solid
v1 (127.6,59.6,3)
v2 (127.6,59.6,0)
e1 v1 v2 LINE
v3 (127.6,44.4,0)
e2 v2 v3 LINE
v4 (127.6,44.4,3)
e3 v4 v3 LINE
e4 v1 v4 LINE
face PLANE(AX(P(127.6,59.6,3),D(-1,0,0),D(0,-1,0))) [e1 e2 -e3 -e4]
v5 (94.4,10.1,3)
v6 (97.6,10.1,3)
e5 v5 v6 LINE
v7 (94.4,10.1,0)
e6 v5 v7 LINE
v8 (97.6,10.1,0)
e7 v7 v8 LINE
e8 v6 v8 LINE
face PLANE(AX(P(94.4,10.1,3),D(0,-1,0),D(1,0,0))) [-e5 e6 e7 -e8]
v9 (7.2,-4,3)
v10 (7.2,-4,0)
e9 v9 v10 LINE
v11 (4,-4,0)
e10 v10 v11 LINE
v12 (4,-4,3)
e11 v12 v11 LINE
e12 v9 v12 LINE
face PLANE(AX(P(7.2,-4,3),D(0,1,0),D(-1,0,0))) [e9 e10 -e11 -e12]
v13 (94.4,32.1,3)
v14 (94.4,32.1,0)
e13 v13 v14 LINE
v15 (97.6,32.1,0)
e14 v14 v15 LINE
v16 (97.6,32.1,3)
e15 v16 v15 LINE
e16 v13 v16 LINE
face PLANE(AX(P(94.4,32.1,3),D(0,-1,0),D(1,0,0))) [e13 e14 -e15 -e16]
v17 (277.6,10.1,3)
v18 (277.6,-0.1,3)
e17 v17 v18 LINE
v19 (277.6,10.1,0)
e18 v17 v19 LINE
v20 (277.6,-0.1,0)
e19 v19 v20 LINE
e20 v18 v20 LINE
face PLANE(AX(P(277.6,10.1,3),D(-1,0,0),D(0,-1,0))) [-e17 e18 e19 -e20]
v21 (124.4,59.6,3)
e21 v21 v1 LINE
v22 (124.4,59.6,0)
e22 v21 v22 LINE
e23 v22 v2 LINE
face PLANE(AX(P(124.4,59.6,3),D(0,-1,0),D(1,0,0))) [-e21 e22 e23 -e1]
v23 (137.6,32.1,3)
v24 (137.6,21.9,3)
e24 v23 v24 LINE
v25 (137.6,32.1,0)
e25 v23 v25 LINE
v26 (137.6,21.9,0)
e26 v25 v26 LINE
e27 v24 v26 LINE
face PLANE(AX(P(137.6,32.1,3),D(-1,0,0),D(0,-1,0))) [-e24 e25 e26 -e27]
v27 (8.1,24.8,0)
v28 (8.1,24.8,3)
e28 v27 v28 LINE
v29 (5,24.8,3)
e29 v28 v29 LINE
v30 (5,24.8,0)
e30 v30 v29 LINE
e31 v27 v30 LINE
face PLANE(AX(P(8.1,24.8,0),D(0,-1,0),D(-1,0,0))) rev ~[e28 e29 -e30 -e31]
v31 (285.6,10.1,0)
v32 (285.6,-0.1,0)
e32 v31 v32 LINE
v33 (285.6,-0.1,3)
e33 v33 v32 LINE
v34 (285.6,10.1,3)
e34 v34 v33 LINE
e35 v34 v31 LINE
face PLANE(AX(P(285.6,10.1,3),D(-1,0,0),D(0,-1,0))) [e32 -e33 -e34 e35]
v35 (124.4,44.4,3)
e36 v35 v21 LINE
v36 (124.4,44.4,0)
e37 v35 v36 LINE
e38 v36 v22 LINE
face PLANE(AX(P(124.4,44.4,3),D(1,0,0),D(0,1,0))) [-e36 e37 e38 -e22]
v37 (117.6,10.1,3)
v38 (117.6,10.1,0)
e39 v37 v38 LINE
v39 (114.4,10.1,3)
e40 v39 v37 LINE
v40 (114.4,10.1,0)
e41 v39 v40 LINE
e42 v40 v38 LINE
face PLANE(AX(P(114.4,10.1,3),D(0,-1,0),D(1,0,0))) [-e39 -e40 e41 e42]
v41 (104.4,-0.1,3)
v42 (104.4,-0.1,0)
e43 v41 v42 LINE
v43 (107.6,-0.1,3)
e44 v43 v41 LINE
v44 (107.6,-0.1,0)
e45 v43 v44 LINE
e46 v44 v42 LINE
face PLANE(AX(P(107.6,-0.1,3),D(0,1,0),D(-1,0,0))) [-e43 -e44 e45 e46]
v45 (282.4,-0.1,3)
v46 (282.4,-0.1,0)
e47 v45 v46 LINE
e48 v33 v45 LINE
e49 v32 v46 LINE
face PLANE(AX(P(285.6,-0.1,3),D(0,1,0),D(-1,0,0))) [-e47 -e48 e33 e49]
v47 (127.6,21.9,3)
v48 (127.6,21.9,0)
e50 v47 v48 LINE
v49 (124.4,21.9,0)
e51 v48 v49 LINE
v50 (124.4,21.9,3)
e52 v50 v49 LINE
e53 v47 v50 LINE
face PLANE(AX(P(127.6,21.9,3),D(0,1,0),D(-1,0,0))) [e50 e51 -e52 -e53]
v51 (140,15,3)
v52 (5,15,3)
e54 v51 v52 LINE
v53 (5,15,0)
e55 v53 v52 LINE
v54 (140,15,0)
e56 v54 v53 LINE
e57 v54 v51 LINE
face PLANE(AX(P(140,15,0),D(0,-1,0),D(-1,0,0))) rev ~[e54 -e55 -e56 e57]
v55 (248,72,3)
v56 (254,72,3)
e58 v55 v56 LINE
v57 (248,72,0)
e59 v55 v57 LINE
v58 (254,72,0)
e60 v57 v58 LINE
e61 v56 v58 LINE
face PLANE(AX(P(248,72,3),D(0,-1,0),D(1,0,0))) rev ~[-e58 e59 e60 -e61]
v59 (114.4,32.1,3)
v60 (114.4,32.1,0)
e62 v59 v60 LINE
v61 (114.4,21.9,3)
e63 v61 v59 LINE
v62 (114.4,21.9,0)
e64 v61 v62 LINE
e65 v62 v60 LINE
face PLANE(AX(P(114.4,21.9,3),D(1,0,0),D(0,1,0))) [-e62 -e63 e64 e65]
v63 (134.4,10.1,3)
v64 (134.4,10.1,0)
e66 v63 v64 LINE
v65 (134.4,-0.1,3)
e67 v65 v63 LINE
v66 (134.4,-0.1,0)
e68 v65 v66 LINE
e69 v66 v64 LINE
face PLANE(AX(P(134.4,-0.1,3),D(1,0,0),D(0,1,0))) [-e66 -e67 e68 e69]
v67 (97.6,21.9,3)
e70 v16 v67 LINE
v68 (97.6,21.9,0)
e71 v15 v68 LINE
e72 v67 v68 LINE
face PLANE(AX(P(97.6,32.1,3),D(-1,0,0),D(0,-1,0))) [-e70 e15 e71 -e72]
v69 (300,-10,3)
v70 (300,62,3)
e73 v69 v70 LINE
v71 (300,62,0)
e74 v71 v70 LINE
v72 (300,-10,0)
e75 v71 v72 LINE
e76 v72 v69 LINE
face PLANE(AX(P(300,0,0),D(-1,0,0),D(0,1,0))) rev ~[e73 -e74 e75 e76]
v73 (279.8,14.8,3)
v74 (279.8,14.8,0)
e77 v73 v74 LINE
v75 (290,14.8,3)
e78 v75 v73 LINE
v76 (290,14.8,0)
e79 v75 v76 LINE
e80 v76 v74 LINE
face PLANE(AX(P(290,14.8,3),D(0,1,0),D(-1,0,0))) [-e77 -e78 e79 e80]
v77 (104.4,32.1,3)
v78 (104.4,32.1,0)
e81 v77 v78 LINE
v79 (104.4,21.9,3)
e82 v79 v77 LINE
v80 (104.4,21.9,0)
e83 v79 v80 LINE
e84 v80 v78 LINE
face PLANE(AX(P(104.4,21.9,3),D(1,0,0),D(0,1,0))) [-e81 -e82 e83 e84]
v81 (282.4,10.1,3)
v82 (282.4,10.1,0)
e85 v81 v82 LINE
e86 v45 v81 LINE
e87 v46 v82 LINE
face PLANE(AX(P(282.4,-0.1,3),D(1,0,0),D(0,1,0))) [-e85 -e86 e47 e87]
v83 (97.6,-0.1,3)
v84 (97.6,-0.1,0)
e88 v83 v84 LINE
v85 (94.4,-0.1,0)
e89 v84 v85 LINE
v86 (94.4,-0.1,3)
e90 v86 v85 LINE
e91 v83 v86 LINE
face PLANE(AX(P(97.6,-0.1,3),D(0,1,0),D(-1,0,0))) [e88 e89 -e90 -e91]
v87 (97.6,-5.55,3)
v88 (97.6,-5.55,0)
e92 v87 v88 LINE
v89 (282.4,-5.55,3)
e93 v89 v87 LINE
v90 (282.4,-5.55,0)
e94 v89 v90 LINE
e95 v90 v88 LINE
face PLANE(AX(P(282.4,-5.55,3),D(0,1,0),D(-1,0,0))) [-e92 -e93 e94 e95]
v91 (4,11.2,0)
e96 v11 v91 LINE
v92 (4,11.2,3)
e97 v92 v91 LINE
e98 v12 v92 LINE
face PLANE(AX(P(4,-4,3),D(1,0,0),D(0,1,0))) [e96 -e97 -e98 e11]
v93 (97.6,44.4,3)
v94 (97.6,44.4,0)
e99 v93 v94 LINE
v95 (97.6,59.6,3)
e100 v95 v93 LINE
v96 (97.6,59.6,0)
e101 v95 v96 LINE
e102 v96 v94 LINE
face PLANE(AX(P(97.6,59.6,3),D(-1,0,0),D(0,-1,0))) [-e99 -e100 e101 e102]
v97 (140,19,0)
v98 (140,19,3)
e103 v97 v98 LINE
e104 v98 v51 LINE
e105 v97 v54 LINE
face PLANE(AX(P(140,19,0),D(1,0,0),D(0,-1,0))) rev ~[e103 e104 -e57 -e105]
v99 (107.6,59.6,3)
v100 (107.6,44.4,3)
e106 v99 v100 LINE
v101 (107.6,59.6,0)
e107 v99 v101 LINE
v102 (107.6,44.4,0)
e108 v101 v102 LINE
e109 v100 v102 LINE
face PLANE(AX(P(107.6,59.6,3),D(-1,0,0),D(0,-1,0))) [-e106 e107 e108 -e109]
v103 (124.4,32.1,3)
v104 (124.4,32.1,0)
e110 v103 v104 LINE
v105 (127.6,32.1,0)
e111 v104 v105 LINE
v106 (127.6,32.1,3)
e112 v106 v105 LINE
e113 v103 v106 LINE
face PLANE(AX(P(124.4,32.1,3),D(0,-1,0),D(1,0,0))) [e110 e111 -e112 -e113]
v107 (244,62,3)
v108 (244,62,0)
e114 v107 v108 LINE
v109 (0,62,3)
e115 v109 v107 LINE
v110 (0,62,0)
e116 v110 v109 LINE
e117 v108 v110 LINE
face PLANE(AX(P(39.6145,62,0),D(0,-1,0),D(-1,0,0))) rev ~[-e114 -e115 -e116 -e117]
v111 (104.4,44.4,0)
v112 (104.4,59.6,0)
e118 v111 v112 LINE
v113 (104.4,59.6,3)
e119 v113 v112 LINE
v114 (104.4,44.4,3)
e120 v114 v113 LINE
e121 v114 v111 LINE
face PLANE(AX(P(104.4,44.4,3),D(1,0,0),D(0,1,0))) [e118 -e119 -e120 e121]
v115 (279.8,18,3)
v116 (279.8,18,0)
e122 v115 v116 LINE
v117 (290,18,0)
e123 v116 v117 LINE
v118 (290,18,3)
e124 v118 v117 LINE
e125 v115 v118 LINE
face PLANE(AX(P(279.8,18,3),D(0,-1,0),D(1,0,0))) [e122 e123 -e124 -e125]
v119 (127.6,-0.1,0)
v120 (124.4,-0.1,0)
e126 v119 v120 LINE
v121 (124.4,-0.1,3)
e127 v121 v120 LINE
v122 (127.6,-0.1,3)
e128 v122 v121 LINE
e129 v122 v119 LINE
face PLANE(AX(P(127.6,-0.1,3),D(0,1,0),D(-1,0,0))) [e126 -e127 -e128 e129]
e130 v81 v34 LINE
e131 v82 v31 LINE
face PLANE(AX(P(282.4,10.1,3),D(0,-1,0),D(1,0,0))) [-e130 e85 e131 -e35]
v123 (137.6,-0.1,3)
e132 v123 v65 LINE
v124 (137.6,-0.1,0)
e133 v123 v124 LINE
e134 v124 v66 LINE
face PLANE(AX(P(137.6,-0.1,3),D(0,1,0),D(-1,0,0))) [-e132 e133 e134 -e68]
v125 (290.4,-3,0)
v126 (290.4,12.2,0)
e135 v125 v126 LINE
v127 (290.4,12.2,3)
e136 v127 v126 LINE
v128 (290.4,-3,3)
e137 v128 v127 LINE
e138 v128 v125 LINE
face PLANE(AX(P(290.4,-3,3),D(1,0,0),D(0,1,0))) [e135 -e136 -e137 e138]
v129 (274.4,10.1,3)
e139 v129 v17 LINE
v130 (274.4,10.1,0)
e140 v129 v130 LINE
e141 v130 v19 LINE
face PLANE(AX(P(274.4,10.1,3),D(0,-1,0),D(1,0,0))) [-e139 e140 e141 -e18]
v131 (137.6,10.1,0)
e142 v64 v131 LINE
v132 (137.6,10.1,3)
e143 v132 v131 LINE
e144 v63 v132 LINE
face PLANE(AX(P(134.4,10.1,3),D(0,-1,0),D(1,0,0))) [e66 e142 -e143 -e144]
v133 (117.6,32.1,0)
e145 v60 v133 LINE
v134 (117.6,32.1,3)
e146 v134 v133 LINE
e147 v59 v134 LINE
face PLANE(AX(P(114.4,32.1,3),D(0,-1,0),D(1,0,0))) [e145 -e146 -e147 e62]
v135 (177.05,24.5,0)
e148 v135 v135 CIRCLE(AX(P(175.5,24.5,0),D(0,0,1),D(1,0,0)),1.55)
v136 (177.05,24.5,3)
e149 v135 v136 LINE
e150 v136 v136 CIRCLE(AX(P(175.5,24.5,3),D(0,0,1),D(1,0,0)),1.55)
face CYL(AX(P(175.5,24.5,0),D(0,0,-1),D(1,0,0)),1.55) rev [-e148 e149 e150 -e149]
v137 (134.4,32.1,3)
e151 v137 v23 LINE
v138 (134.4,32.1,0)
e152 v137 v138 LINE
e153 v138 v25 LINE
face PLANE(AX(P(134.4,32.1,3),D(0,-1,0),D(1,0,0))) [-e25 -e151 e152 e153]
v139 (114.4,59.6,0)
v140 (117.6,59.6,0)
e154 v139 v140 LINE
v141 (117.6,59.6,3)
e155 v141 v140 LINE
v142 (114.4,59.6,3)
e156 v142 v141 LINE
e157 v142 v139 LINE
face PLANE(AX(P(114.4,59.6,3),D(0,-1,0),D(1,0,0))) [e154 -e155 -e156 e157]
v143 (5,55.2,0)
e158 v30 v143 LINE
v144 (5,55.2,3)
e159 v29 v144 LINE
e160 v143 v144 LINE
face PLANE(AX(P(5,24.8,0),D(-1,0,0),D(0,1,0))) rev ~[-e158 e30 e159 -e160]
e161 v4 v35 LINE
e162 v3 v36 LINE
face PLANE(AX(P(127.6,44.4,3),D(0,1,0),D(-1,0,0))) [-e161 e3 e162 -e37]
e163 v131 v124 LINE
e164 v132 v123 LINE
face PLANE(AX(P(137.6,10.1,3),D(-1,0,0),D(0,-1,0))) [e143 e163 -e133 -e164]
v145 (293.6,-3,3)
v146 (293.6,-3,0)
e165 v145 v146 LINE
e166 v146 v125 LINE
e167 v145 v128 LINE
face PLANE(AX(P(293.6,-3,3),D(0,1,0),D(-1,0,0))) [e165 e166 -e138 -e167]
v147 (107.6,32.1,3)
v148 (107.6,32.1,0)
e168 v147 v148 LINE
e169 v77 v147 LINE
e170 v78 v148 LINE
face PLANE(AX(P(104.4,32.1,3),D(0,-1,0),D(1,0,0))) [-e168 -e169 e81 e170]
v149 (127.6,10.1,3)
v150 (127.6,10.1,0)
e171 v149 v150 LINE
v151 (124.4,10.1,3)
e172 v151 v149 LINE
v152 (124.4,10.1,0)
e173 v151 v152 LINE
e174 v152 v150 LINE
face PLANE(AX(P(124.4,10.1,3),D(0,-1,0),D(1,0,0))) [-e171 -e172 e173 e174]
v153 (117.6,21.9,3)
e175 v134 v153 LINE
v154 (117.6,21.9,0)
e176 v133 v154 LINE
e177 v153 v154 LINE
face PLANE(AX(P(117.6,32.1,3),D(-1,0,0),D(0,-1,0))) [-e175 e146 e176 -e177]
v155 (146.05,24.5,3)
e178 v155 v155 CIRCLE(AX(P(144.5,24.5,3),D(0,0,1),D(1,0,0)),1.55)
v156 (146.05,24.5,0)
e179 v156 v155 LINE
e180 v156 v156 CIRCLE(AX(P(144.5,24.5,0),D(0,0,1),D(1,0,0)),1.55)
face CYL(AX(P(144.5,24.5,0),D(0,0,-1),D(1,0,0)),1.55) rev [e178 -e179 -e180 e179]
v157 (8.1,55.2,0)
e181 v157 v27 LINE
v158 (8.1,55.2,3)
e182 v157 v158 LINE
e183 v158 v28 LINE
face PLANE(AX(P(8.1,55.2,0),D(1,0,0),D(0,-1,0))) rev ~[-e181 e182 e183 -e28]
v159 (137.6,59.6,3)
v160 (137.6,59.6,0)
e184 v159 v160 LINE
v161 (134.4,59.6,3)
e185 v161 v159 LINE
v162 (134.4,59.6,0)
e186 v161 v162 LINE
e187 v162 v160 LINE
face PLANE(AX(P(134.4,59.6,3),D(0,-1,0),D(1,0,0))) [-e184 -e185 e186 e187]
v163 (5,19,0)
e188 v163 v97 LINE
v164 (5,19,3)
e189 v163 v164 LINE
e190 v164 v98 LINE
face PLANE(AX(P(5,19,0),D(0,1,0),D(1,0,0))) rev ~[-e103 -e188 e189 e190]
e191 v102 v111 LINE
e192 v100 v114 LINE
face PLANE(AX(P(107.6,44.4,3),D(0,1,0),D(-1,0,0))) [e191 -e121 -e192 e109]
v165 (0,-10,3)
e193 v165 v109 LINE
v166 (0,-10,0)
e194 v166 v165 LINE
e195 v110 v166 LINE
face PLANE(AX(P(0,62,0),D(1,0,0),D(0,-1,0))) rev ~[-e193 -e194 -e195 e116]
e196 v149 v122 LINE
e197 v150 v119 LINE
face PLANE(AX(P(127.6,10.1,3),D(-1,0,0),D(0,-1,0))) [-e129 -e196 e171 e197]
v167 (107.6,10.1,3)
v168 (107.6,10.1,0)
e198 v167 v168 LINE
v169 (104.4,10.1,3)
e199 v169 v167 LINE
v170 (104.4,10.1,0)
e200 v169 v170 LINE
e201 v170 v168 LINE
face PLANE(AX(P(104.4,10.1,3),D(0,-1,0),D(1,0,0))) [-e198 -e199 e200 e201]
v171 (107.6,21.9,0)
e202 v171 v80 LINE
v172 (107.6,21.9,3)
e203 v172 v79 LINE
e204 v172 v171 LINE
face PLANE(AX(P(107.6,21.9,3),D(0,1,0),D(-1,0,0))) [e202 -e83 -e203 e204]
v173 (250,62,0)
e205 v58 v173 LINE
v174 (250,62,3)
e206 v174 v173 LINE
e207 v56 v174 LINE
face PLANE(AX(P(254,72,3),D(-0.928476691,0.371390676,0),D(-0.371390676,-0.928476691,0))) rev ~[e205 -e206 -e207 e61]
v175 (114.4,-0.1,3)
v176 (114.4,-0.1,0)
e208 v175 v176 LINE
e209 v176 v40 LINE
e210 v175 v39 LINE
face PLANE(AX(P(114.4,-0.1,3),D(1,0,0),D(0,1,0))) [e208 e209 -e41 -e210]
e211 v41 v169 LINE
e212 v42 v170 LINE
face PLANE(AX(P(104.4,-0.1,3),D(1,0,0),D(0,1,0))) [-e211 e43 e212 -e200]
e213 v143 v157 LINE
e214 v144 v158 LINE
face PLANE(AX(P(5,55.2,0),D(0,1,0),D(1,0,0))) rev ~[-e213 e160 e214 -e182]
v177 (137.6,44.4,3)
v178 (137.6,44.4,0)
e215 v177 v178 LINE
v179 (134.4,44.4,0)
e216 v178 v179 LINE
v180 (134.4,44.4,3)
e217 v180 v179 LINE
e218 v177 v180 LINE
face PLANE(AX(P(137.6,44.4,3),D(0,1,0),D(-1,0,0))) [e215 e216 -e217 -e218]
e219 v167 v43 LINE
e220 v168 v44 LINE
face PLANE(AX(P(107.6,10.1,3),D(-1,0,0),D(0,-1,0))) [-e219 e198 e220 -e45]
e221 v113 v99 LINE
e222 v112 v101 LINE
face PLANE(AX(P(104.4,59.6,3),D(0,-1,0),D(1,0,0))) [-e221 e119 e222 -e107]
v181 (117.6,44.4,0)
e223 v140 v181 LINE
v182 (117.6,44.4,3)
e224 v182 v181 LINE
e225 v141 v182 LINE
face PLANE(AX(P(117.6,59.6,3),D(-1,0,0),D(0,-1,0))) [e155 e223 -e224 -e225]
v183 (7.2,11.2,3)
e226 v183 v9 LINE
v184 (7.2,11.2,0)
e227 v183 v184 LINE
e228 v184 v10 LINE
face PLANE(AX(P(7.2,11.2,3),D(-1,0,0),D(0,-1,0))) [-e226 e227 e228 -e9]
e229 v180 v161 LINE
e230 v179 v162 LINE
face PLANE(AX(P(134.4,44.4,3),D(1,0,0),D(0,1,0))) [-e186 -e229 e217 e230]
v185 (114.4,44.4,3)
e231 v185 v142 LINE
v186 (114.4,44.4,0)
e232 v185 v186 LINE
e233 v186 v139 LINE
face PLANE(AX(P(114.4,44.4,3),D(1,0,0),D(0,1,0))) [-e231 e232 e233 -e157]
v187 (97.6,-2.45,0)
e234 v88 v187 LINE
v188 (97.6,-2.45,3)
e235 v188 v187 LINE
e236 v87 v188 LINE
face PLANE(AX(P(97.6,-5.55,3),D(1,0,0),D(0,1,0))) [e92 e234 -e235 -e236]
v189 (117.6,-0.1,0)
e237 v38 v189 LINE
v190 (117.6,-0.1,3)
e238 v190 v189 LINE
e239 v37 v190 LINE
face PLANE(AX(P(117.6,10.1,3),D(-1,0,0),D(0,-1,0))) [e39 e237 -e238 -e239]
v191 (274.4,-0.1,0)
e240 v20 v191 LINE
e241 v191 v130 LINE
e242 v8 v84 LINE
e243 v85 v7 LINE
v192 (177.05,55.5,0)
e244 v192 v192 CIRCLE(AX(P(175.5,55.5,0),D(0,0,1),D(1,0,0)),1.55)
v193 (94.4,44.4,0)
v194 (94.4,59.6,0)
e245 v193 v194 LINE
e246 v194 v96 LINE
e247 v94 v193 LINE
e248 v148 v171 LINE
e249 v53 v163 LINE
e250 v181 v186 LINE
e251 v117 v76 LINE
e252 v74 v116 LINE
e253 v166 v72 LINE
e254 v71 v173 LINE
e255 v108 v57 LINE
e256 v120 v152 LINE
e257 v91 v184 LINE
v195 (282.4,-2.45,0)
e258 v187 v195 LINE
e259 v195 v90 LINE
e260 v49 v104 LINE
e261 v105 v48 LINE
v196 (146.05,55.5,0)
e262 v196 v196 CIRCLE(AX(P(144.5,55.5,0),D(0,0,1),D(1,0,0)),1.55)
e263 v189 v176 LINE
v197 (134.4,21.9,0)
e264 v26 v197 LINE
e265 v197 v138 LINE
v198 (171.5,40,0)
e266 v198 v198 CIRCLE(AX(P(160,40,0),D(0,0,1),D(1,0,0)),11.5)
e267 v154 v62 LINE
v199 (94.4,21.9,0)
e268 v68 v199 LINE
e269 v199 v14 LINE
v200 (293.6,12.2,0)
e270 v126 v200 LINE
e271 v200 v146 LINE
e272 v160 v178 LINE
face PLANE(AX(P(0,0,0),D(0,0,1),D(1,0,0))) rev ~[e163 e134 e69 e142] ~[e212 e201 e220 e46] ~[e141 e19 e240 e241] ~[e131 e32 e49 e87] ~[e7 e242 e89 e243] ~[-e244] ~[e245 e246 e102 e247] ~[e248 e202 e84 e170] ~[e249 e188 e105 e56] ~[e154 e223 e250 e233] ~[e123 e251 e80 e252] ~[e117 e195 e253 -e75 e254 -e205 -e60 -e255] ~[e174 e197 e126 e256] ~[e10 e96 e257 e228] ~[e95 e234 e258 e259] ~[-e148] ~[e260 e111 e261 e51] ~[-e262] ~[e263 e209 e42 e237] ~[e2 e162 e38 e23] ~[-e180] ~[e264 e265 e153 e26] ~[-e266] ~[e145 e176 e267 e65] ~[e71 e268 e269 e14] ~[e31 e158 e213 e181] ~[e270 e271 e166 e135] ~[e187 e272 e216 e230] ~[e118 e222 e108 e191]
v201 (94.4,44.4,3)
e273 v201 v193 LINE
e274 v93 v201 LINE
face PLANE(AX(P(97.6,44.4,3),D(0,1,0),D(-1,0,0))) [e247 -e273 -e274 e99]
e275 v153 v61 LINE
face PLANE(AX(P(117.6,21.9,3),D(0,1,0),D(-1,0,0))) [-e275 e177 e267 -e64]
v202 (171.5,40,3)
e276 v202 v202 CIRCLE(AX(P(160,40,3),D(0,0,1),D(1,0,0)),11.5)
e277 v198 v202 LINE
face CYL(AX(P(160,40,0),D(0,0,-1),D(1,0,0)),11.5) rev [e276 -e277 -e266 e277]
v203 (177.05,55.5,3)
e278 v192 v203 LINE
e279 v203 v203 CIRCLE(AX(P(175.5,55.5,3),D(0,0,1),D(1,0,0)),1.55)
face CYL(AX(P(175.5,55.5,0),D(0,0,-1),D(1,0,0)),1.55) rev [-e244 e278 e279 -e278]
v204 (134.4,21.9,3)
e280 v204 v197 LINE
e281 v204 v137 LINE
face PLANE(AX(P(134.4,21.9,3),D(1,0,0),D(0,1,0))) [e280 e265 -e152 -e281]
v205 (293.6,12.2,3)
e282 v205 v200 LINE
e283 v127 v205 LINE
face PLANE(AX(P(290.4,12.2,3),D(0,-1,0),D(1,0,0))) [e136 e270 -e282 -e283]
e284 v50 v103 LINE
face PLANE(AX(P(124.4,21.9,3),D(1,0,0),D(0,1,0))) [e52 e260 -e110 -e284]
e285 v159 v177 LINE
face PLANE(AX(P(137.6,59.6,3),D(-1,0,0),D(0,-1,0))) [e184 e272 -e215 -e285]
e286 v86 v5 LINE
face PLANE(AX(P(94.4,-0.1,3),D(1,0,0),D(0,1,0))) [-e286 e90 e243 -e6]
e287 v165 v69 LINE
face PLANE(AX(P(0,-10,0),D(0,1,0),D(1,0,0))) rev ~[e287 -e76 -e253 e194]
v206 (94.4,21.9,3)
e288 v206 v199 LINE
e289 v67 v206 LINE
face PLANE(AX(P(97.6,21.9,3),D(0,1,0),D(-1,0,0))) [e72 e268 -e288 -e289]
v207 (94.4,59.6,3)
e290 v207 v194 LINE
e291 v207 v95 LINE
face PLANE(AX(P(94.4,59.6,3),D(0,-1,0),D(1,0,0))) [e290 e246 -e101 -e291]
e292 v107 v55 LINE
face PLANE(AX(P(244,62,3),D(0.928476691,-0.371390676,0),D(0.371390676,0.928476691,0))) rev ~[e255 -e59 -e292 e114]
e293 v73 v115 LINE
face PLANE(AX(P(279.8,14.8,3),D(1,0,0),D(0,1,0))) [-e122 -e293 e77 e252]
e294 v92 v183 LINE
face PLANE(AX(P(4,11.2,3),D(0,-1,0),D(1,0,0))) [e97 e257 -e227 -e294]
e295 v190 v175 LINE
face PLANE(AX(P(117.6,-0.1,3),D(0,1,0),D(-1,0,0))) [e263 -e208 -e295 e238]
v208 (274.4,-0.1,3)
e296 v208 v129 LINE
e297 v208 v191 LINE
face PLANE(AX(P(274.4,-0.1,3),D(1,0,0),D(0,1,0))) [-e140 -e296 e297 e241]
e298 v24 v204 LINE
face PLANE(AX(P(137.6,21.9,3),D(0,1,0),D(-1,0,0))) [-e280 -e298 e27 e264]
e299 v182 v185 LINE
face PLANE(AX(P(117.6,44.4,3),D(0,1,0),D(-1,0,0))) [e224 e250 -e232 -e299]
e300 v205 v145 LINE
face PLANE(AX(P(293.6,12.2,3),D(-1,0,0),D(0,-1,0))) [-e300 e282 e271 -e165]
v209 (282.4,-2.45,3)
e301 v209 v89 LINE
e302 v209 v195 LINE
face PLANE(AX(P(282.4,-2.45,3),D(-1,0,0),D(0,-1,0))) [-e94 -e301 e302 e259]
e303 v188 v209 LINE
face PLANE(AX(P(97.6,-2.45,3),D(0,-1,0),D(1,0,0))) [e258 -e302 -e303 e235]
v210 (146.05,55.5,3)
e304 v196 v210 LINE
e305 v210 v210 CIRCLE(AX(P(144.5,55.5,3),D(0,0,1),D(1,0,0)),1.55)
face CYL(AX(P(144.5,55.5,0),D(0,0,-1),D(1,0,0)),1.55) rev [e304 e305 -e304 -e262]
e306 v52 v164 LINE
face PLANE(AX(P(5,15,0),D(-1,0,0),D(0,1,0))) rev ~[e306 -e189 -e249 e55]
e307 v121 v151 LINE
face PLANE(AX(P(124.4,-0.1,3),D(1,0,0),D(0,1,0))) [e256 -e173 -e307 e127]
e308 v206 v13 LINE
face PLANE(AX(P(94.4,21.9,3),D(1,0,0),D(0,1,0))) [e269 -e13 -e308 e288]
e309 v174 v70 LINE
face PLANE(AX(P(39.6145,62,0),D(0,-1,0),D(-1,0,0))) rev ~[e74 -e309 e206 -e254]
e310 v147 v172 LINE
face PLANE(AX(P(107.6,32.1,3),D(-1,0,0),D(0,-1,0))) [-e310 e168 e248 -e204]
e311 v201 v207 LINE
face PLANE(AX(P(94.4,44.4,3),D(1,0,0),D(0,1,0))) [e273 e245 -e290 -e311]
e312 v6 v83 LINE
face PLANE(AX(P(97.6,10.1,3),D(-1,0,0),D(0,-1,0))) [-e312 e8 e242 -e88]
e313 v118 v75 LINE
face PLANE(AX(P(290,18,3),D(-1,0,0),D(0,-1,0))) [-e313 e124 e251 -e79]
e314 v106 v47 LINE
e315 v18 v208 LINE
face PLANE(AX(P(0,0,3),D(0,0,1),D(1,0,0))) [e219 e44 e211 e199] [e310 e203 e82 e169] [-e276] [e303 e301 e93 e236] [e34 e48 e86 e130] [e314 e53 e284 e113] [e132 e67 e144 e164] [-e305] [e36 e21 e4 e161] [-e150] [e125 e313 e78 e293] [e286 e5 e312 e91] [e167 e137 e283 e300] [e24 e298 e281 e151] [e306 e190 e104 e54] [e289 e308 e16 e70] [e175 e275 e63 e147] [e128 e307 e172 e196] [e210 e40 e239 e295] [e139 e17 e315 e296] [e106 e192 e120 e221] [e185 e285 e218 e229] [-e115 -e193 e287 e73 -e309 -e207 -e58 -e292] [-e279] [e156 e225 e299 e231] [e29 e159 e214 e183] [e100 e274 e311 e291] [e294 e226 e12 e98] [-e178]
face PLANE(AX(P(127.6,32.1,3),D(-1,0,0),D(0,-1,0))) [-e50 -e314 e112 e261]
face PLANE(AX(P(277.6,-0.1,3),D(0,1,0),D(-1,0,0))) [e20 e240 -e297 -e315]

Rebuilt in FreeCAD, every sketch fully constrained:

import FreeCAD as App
import Part
import Sketcher
from FreeCAD import Vector
Q = App.Units.Quantity

doc = App.newDocument("Part")
body = doc.addObject("PartDesign::Body", "Body")

# Sketch on XY plane
sketch1 = doc.addObject("Sketcher::SketchObject", "Sketch")
body.addObject(sketch1)
sketch1.AttachmentSupport = (doc.XY_Plane, [""])
sketch1.MapMode = "FlatFace"
sketch1.addGeometry([
    Part.LineSegment(Vector(0, 62, 0), Vector(0, -10, 0)),  # 0
    Part.LineSegment(Vector(0, -10, 0), Vector(300, -10, 0)),  # 1
    Part.LineSegment(Vector(300, -10, 0), Vector(300, 62, 0)),  # 2
    Part.LineSegment(Vector(300, 62, 0), Vector(0, 62, 0)),  # 3
    Part.LineSegment(Vector(5, 15, 0), Vector(5, 19, 0)),  # 4
    Part.LineSegment(Vector(5, 19, 0), Vector(140, 19, 0)),  # 5
    Part.LineSegment(Vector(140, 19, 0), Vector(140, 15, 0)),  # 6
    Part.LineSegment(Vector(140, 15, 0), Vector(5, 15, 0)),  # 7
    Part.Circle(Vector(144.5, 24.5, 0), Vector(0, 0, 1), 1.55),  # 8
    Part.Circle(Vector(175.5, 24.5, 0), Vector(0, 0, 1), 1.55),  # 9
    Part.LineSegment(Vector(8.1, 55.2, 0), Vector(8.1, 24.8, 0)),  # 10
    Part.LineSegment(Vector(8.1, 24.8, 0), Vector(5, 24.8, 0)),  # 11
    Part.LineSegment(Vector(5, 24.8, 0), Vector(5, 55.2, 0)),  # 12
    Part.LineSegment(Vector(5, 55.2, 0), Vector(8.1, 55.2, 0)),  # 13
    Part.Circle(Vector(144.5, 55.5, 0), Vector(0, 0, 1), 1.55),  # 14
    Part.Circle(Vector(160, 40, 0), Vector(0, 0, 1), 11.5),  # 15
    Part.Circle(Vector(175.5, 55.5, 0), Vector(0, 0, 1), 1.55),  # 16
], False)
sketch1.addConstraint([
    Sketcher.Constraint("Coincident", 0, 2, 1, 1),
    Sketcher.Constraint("Coincident", 1, 2, 2, 1),
    Sketcher.Constraint("Coincident", 2, 2, 3, 1),
    Sketcher.Constraint("Coincident", 3, 2, 0, 1),
    Sketcher.Constraint("Coincident", 4, 2, 5, 1),
    Sketcher.Constraint("Coincident", 5, 2, 6, 1),
    Sketcher.Constraint("Coincident", 6, 2, 7, 1),
    Sketcher.Constraint("Coincident", 7, 2, 4, 1),
    Sketcher.Constraint("Coincident", 10, 2, 11, 1),
    Sketcher.Constraint("Coincident", 11, 2, 12, 1),
    Sketcher.Constraint("Coincident", 12, 2, 13, 1),
    Sketcher.Constraint("Coincident", 13, 2, 10, 1),
    Sketcher.Constraint("Vertical", 0),
    Sketcher.Constraint("Horizontal", 1),
    Sketcher.Constraint("Vertical", 2),
    Sketcher.Constraint("Horizontal", 3),
    Sketcher.Constraint("Vertical", 4),
    Sketcher.Constraint("Horizontal", 5),
    Sketcher.Constraint("Vertical", 6),
    Sketcher.Constraint("Horizontal", 7),
    Sketcher.Constraint("Vertical", 10),
    Sketcher.Constraint("Horizontal", 11),
    Sketcher.Constraint("Vertical", 12),
    Sketcher.Constraint("Horizontal", 13),
    Sketcher.Constraint("Equal", 8, 9),
    Sketcher.Constraint("Equal", 9, 14),
    Sketcher.Constraint("Equal", 14, 16),
    Sketcher.Constraint("PointOnObject", 0, 2, -2),
    Sketcher.Constraint("Horizontal", 8, 3, 9, 3),
    Sketcher.Constraint("Horizontal", 14, 3, 16, 3),
    Sketcher.Constraint("Vertical", 8, 3, 14, 3),
    Sketcher.Constraint("Vertical", 9, 3, 16, 3),
    Sketcher.Constraint("Vertical", 7, 2, 11, 2),
    Sketcher.Constraint("Diameter", 15, Q("23 mm")),
    Sketcher.Constraint("Diameter", 8, Q("3.1 mm")),
    Sketcher.Constraint("DistanceX", 1, 1, 1, 2, Q("300 mm")),
    Sketcher.Constraint("DistanceX", 5, 1, 5, 2, Q("135 mm")),
    Sketcher.Constraint("DistanceY", 4, 1, 4, 2, Q("4 mm")),
    Sketcher.Constraint("DistanceX", 11, 2, 11, 1, Q("3.1 mm")),
    Sketcher.Constraint("DistanceY", -1, 1, 15, 3, Q("40 mm")),
    Sketcher.Constraint("DistanceY", 0, 2, -1, 1, Q("10 mm")),
    Sketcher.Constraint("DistanceY", -1, 1, 2, 2, Q("62 mm")),
    Sketcher.Constraint("DistanceX", -1, 1, 4, 2, Q("5 mm")),
    Sketcher.Constraint("DistanceY", -1, 1, 6, 2, Q("15 mm")),
    Sketcher.Constraint("DistanceX", 8, 3, 9, 3, Q("31 mm")),
    Sketcher.Constraint("DistanceY", 8, 3, 14, 3, Q("31 mm")),
    Sketcher.Constraint("DistanceX", 5, 2, 15, 3, Q("20 mm")),
    Sketcher.Constraint("DistanceX", 8, 3, 15, 3, Q("15.5 mm")),
    Sketcher.Constraint("DistanceY", 8, 3, 15, 3, Q("15.5 mm")),
    Sketcher.Constraint("DistanceY", 10, 2, 10, 1, Q("30.4 mm")),
    Sketcher.Constraint("DistanceY", -1, 1, 10, 2, Q("24.8 mm")),
])
pad1 = doc.addObject("PartDesign::Pad", "Pad")
body.addObject(pad1)
pad1.Profile = sketch1
pad1.Length = 3

# Sketch on XY plane
sketch2 = doc.addObject("Sketcher::SketchObject", "Sketch001")
body.addObject(sketch2)
sketch2.AttachmentSupport = (doc.XY_Plane, [""])
sketch2.MapMode = "FlatFace"
sketch2.AttachmentOffset = App.Placement(Vector(0, 0, 3), App.Rotation())
sketch2.addGeometry([
    Part.LineSegment(Vector(244, 62, 0), Vector(250, 62, 0)),
    Part.LineSegment(Vector(250, 62, 0), Vector(254, 72, 0)),
    Part.LineSegment(Vector(254, 72, 0), Vector(248, 72, 0)),
    Part.LineSegment(Vector(248, 72, 0), Vector(244, 62, 0)),
], False)
sketch2.addConstraint([
    Sketcher.Constraint("Coincident", 0, 2, 1, 1),
    Sketcher.Constraint("Coincident", 1, 2, 2, 1),
    Sketcher.Constraint("Coincident", 2, 2, 3, 1),
    Sketcher.Constraint("Coincident", 3, 2, 0, 1),
    Sketcher.Constraint("Horizontal", 0),
    Sketcher.Constraint("Horizontal", 2),
    Sketcher.Constraint("Parallel", 1, 3),
    Sketcher.Constraint("DistanceX", 0, 1, 0, 2, Q("6 mm")),
    Sketcher.Constraint("DistanceX", 0, 2, 1, 2, Q("4 mm")),
    Sketcher.Constraint("DistanceY", 0, 2, 1, 2, Q("10 mm")),
    Sketcher.Constraint("DistanceX", -1, 1, 0, 2, Q("250 mm")),
    Sketcher.Constraint("DistanceY", -1, 1, 0, 2, Q("62 mm")),
])
pad2 = doc.addObject("PartDesign::Pad", "Pad001")
body.addObject(pad2)
pad2.Profile = sketch2
pad2.Length = 3
pad2.Reversed = True

# Sketch on XY plane
sketch3 = doc.addObject("Sketcher::SketchObject", "Sketch002")
body.addObject(sketch3)
sketch3.AttachmentSupport = (doc.XY_Plane, [""])
sketch3.MapMode = "FlatFace"
sketch3.AttachmentOffset = App.Placement(Vector(0, 0, 3), App.Rotation())
sketch3.addGeometry([
    Part.LineSegment(Vector(137.6, 59.6, 0), Vector(134.4, 59.6, 0)),  # 0
    Part.LineSegment(Vector(134.4, 59.6, 0), Vector(134.4, 44.4, 0)),  # 1
    Part.LineSegment(Vector(134.4, 44.4, 0), Vector(137.6, 44.4, 0)),  # 2
    Part.LineSegment(Vector(137.6, 44.4, 0), Vector(137.6, 59.6, 0)),  # 3
    Part.LineSegment(Vector(137.6, 32.1, 0), Vector(134.4, 32.1, 0)),  # 4
    Part.LineSegment(Vector(134.4, 32.1, 0), Vector(134.4, 21.9, 0)),  # 5
    Part.LineSegment(Vector(134.4, 21.9, 0), Vector(137.6, 21.9, 0)),  # 6
    Part.LineSegment(Vector(137.6, 21.9, 0), Vector(137.6, 32.1, 0)),  # 7
    Part.LineSegment(Vector(127.6, 59.6, 0), Vector(124.4, 59.6, 0)),  # 8
    Part.LineSegment(Vector(124.4, 59.6, 0), Vector(124.4, 44.4, 0)),  # 9
    Part.LineSegment(Vector(124.4, 44.4, 0), Vector(127.6, 44.4, 0)),  # 10
    Part.LineSegment(Vector(127.6, 44.4, 0), Vector(127.6, 59.6, 0)),  # 11
    Part.LineSegment(Vector(127.6, 32.1, 0), Vector(124.4, 32.1, 0)),  # 12
    Part.LineSegment(Vector(124.4, 32.1, 0), Vector(124.4, 21.9, 0)),  # 13
    Part.LineSegment(Vector(124.4, 21.9, 0), Vector(127.6, 21.9, 0)),  # 14
    Part.LineSegment(Vector(127.6, 21.9, 0), Vector(127.6, 32.1, 0)),  # 15
    Part.LineSegment(Vector(117.6, 59.6, 0), Vector(114.4, 59.6, 0)),  # 16
    Part.LineSegment(Vector(114.4, 59.6, 0), Vector(114.4, 44.4, 0)),  # 17
    Part.LineSegment(Vector(114.4, 44.4, 0), Vector(117.6, 44.4, 0)),  # 18
    Part.LineSegment(Vector(117.6, 44.4, 0), Vector(117.6, 59.6, 0)),  # 19
    Part.LineSegment(Vector(117.6, 32.1, 0), Vector(114.4, 32.1, 0)),  # 20
    Part.LineSegment(Vector(114.4, 32.1, 0), Vector(114.4, 21.9, 0)),  # 21
    Part.LineSegment(Vector(114.4, 21.9, 0), Vector(117.6, 21.9, 0)),  # 22
    Part.LineSegment(Vector(117.6, 21.9, 0), Vector(117.6, 32.1, 0)),  # 23
    Part.LineSegment(Vector(107.6, 59.6, 0), Vector(104.4, 59.6, 0)),  # 24
    Part.LineSegment(Vector(104.4, 59.6, 0), Vector(104.4, 44.4, 0)),  # 25
    Part.LineSegment(Vector(104.4, 44.4, 0), Vector(107.6, 44.4, 0)),  # 26
    Part.LineSegment(Vector(107.6, 44.4, 0), Vector(107.6, 59.6, 0)),  # 27
    Part.LineSegment(Vector(107.6, 32.1, 0), Vector(104.4, 32.1, 0)),  # 28
    Part.LineSegment(Vector(104.4, 32.1, 0), Vector(104.4, 21.9, 0)),  # 29
    Part.LineSegment(Vector(104.4, 21.9, 0), Vector(107.6, 21.9, 0)),  # 30
    Part.LineSegment(Vector(107.6, 21.9, 0), Vector(107.6, 32.1, 0)),  # 31
    Part.LineSegment(Vector(97.6, 59.6, 0), Vector(94.4, 59.6, 0)),  # 32
    Part.LineSegment(Vector(94.4, 59.6, 0), Vector(94.4, 44.4, 0)),  # 33
    Part.LineSegment(Vector(94.4, 44.4, 0), Vector(97.6, 44.4, 0)),  # 34
    Part.LineSegment(Vector(97.6, 44.4, 0), Vector(97.6, 59.6, 0)),  # 35
    Part.LineSegment(Vector(97.6, 32.1, 0), Vector(94.4, 32.1, 0)),  # 36
    Part.LineSegment(Vector(94.4, 32.1, 0), Vector(94.4, 21.9, 0)),  # 37
    Part.LineSegment(Vector(94.4, 21.9, 0), Vector(97.6, 21.9, 0)),  # 38
    Part.LineSegment(Vector(97.6, 21.9, 0), Vector(97.6, 32.1, 0)),  # 39
    Part.LineSegment(Vector(137.6, 10.1, 0), Vector(134.4, 10.1, 0)),  # 40
    Part.LineSegment(Vector(134.4, 10.1, 0), Vector(134.4, -0.1, 0)),  # 41
    Part.LineSegment(Vector(134.4, -0.1, 0), Vector(137.6, -0.1, 0)),  # 42
    Part.LineSegment(Vector(137.6, -0.1, 0), Vector(137.6, 10.1, 0)),  # 43
    Part.LineSegment(Vector(127.6, -0.1, 0), Vector(127.6, 10.1, 0)),  # 44
    Part.LineSegment(Vector(127.6, 10.1, 0), Vector(124.4, 10.1, 0)),  # 45
    Part.LineSegment(Vector(124.4, 10.1, 0), Vector(124.4, -0.1, 0)),  # 46
    Part.LineSegment(Vector(124.4, -0.1, 0), Vector(127.6, -0.1, 0)),  # 47
    Part.LineSegment(Vector(117.6, -0.1, 0), Vector(117.6, 10.1, 0)),  # 48
    Part.LineSegment(Vector(117.6, 10.1, 0), Vector(114.4, 10.1, 0)),  # 49
    Part.LineSegment(Vector(114.4, 10.1, 0), Vector(114.4, -0.1, 0)),  # 50
    Part.LineSegment(Vector(114.4, -0.1, 0), Vector(117.6, -0.1, 0)),  # 51
    Part.LineSegment(Vector(107.6, -0.1, 0), Vector(107.6, 10.1, 0)),  # 52
    Part.LineSegment(Vector(107.6, 10.1, 0), Vector(104.4, 10.1, 0)),  # 53
    Part.LineSegment(Vector(104.4, 10.1, 0), Vector(104.4, -0.1, 0)),  # 54
    Part.LineSegment(Vector(104.4, -0.1, 0), Vector(107.6, -0.1, 0)),  # 55
    Part.LineSegment(Vector(97.6, -0.1, 0), Vector(97.6, 10.1, 0)),  # 56
    Part.LineSegment(Vector(97.6, 10.1, 0), Vector(94.4, 10.1, 0)),  # 57
    Part.LineSegment(Vector(94.4, 10.1, 0), Vector(94.4, -0.1, 0)),  # 58
    Part.LineSegment(Vector(94.4, -0.1, 0), Vector(97.6, -0.1, 0)),  # 59
], False)
sketch3.addConstraint([
    Sketcher.Constraint("Coincident", 0, 2, 1, 1),
    Sketcher.Constraint("Coincident", 1, 2, 2, 1),
    Sketcher.Constraint("Coincident", 2, 2, 3, 1),
    Sketcher.Constraint("Coincident", 3, 2, 0, 1),
    Sketcher.Constraint("Coincident", 4, 2, 5, 1),
    Sketcher.Constraint("Coincident", 5, 2, 6, 1),
    Sketcher.Constraint("Coincident", 6, 2, 7, 1),
    Sketcher.Constraint("Coincident", 7, 2, 4, 1),
    Sketcher.Constraint("Coincident", 8, 2, 9, 1),
    Sketcher.Constraint("Coincident", 9, 2, 10, 1),
    Sketcher.Constraint("Coincident", 10, 2, 11, 1),
    Sketcher.Constraint("Coincident", 11, 2, 8, 1),
    Sketcher.Constraint("Coincident", 12, 2, 13, 1),
    Sketcher.Constraint("Coincident", 13, 2, 14, 1),
    Sketcher.Constraint("Coincident", 14, 2, 15, 1),
    Sketcher.Constraint("Coincident", 15, 2, 12, 1),
    Sketcher.Constraint("Coincident", 16, 2, 17, 1),
    Sketcher.Constraint("Coincident", 17, 2, 18, 1),
    Sketcher.Constraint("Coincident", 18, 2, 19, 1),
    Sketcher.Constraint("Coincident", 19, 2, 16, 1),
    Sketcher.Constraint("Coincident", 20, 2, 21, 1),
    Sketcher.Constraint("Coincident", 21, 2, 22, 1),
    Sketcher.Constraint("Coincident", 22, 2, 23, 1),
    Sketcher.Constraint("Coincident", 23, 2, 20, 1),
    Sketcher.Constraint("Coincident", 24, 2, 25, 1),
    Sketcher.Constraint("Coincident", 25, 2, 26, 1),
    Sketcher.Constraint("Coincident", 26, 2, 27, 1),
    Sketcher.Constraint("Coincident", 27, 2, 24, 1),
    Sketcher.Constraint("Coincident", 28, 2, 29, 1),
    Sketcher.Constraint("Coincident", 29, 2, 30, 1),
    Sketcher.Constraint("Coincident", 30, 2, 31, 1),
    Sketcher.Constraint("Coincident", 31, 2, 28, 1),
    Sketcher.Constraint("Coincident", 32, 2, 33, 1),
    Sketcher.Constraint("Coincident", 33, 2, 34, 1),
    Sketcher.Constraint("Coincident", 34, 2, 35, 1),
    Sketcher.Constraint("Coincident", 35, 2, 32, 1),
    Sketcher.Constraint("Coincident", 36, 2, 37, 1),
    Sketcher.Constraint("Coincident", 37, 2, 38, 1),
    Sketcher.Constraint("Coincident", 38, 2, 39, 1),
    Sketcher.Constraint("Coincident", 39, 2, 36, 1),
    Sketcher.Constraint("Coincident", 40, 2, 41, 1),
    Sketcher.Constraint("Coincident", 41, 2, 42, 1),
    Sketcher.Constraint("Coincident", 42, 2, 43, 1),
    Sketcher.Constraint("Coincident", 43, 2, 40, 1),
    Sketcher.Constraint("Coincident", 44, 2, 45, 1),
    Sketcher.Constraint("Coincident", 45, 2, 46, 1),
    Sketcher.Constraint("Coincident", 46, 2, 47, 1),
    Sketcher.Constraint("Coincident", 47, 2, 44, 1),
    Sketcher.Constraint("Coincident", 48, 2, 49, 1),
    Sketcher.Constraint("Coincident", 49, 2, 50, 1),
    Sketcher.Constraint("Coincident", 50, 2, 51, 1),
    Sketcher.Constraint("Coincident", 51, 2, 48, 1),
    Sketcher.Constraint("Coincident", 52, 2, 53, 1),
    Sketcher.Constraint("Coincident", 53, 2, 54, 1),
    Sketcher.Constraint("Coincident", 54, 2, 55, 1),
    Sketcher.Constraint("Coincident", 55, 2, 52, 1),
    Sketcher.Constraint("Coincident", 56, 2, 57, 1),
    Sketcher.Constraint("Coincident", 57, 2, 58, 1),
    Sketcher.Constraint("Coincident", 58, 2, 59, 1),
    Sketcher.Constraint("Coincident", 59, 2, 56, 1),
    Sketcher.Constraint("Horizontal", 0),
    Sketcher.Constraint("Vertical", 1),
    Sketcher.Constraint("Horizontal", 2),
    Sketcher.Constraint("Vertical", 3),
    Sketcher.Constraint("Horizontal", 4),
    Sketcher.Constraint("Vertical", 5),
    Sketcher.Constraint("Horizontal", 6),
    Sketcher.Constraint("Vertical", 7),
    Sketcher.Constraint("Horizontal", 8),
    Sketcher.Constraint("Vertical", 9),
    Sketcher.Constraint("Horizontal", 10),
    Sketcher.Constraint("Vertical", 11),
    Sketcher.Constraint("Horizontal", 12),
    Sketcher.Constraint("Vertical", 13),
    Sketcher.Constraint("Horizontal", 14),
    Sketcher.Constraint("Vertical", 15),
    Sketcher.Constraint("Horizontal", 16),
    Sketcher.Constraint("Vertical", 17),
    Sketcher.Constraint("Horizontal", 18),
    Sketcher.Constraint("Vertical", 19),
    Sketcher.Constraint("Horizontal", 20),
    Sketcher.Constraint("Vertical", 21),
    Sketcher.Constraint("Horizontal", 22),
    Sketcher.Constraint("Vertical", 23),
    Sketcher.Constraint("Horizontal", 24),
    Sketcher.Constraint("Vertical", 25),
    Sketcher.Constraint("Horizontal", 26),
    Sketcher.Constraint("Vertical", 27),
    Sketcher.Constraint("Horizontal", 28),
    Sketcher.Constraint("Vertical", 29),
    Sketcher.Constraint("Horizontal", 30),
    Sketcher.Constraint("Vertical", 31),
    Sketcher.Constraint("Horizontal", 32),
    Sketcher.Constraint("Vertical", 33),
    Sketcher.Constraint("Horizontal", 34),
    Sketcher.Constraint("Vertical", 35),
    Sketcher.Constraint("Horizontal", 36),
    Sketcher.Constraint("Vertical", 37),
    Sketcher.Constraint("Horizontal", 38),
    Sketcher.Constraint("Vertical", 39),
    Sketcher.Constraint("Horizontal", 40),
    Sketcher.Constraint("Vertical", 41),
    Sketcher.Constraint("Horizontal", 42),
    Sketcher.Constraint("Vertical", 43),
    Sketcher.Constraint("Vertical", 44),
    Sketcher.Constraint("Horizontal", 45),
    Sketcher.Constraint("Vertical", 46),
    Sketcher.Constraint("Horizontal", 47),
    Sketcher.Constraint("Vertical", 48),
    Sketcher.Constraint("Horizontal", 49),
    Sketcher.Constraint("Vertical", 50),
    Sketcher.Constraint("Horizontal", 51),
    Sketcher.Constraint("Vertical", 52),
    Sketcher.Constraint("Horizontal", 53),
    Sketcher.Constraint("Vertical", 54),
    Sketcher.Constraint("Horizontal", 55),
    Sketcher.Constraint("Vertical", 56),
    Sketcher.Constraint("Horizontal", 57),
    Sketcher.Constraint("Vertical", 58),
    Sketcher.Constraint("Horizontal", 59),
    Sketcher.Constraint("Horizontal", 3, 2, 8, 2),
    Sketcher.Constraint("Horizontal", 2, 2, 9, 2),
    Sketcher.Constraint("Horizontal", 7, 2, 12, 2),
    Sketcher.Constraint("Horizontal", 6, 2, 13, 2),
    Sketcher.Constraint("Horizontal", 11, 2, 16, 2),
    Sketcher.Constraint("Horizontal", 10, 2, 17, 2),
    Sketcher.Constraint("Horizontal", 15, 2, 20, 2),
    Sketcher.Constraint("Horizontal", 14, 2, 21, 2),
    Sketcher.Constraint("Horizontal", 19, 2, 24, 2),
    Sketcher.Constraint("Horizontal", 18, 2, 25, 2),
    Sketcher.Constraint("Horizontal", 23, 2, 28, 2),
    Sketcher.Constraint("Horizontal", 22, 2, 29, 2),
    Sketcher.Constraint("Horizontal", 27, 2, 32, 2),
    Sketcher.Constraint("Horizontal", 26, 2, 33, 2),
    Sketcher.Constraint("Horizontal", 31, 2, 36, 2),
    Sketcher.Constraint("Horizontal", 30, 2, 37, 2),
    Sketcher.Constraint("Horizontal", 43, 2, 44, 2),
    Sketcher.Constraint("Horizontal", 42, 2, 46, 2),
    Sketcher.Constraint("Horizontal", 45, 2, 48, 2),
    Sketcher.Constraint("Horizontal", 47, 2, 50, 2),
    Sketcher.Constraint("Horizontal", 49, 2, 52, 2),
    Sketcher.Constraint("Horizontal", 51, 2, 54, 2),
    Sketcher.Constraint("Horizontal", 53, 2, 56, 2),
    Sketcher.Constraint("Horizontal", 55, 2, 58, 2),
    Sketcher.Constraint("Vertical", 1, 2, 4, 2),
    Sketcher.Constraint("Vertical", 3, 2, 6, 2),
    Sketcher.Constraint("Vertical", 9, 2, 12, 2),
    Sketcher.Constraint("Vertical", 11, 2, 14, 2),
    Sketcher.Constraint("Vertical", 17, 2, 20, 2),
    Sketcher.Constraint("Vertical", 19, 2, 22, 2),
    Sketcher.Constraint("Vertical", 25, 2, 28, 2),
    Sketcher.Constraint("Vertical", 27, 2, 30, 2),
    Sketcher.Constraint("Vertical", 33, 2, 36, 2),
    Sketcher.Constraint("Vertical", 35, 2, 38, 2),
    Sketcher.Constraint("Vertical", 5, 2, 40, 2),
    Sketcher.Constraint("Vertical", 7, 2, 42, 2),
    Sketcher.Constraint("Vertical", 15, 2, 44, 2),
    Sketcher.Constraint("Vertical", 13, 2, 45, 2),
    Sketcher.Constraint("Vertical", 23, 2, 48, 2),
    Sketcher.Constraint("Vertical", 21, 2, 49, 2),
    Sketcher.Constraint("Vertical", 31, 2, 52, 2),
    Sketcher.Constraint("Vertical", 29, 2, 53, 2),
    Sketcher.Constraint("Vertical", 39, 2, 56, 2),
    Sketcher.Constraint("Vertical", 37, 2, 57, 2),
    Sketcher.Constraint("Equal", 6, 8),
    Sketcher.Constraint("Equal", 14, 16),
    Sketcher.Constraint("Equal", 22, 24),
    Sketcher.Constraint("Equal", 30, 32),
    Sketcher.Constraint("Equal", 39, 41),
    Sketcher.Constraint("DistanceX", 0, 2, 0, 1, Q("3.2 mm")),
    Sketcher.Constraint("DistanceY", 1, 2, 1, 1, Q("15.2 mm")),
    Sketcher.Constraint("DistanceY", 5, 2, 5, 1, Q("10.2 mm")),
    Sketcher.Constraint("DistanceX", 8, 2, 0, 2, Q("10 mm")),
    Sketcher.Constraint("DistanceX", 16, 2, 8, 2, Q("10 mm")),
    Sketcher.Constraint("DistanceX", 24, 2, 16, 2, Q("10 mm")),
    Sketcher.Constraint("DistanceX", 32, 2, 24, 2, Q("10 mm")),
    Sketcher.Constraint("DistanceY", 41, 2, 5, 2, Q("22 mm")),
    Sketcher.Constraint("DistanceX", -1, 1, 0, 2, Q("134.4 mm")),
    Sketcher.Constraint("DistanceY", -1, 1, 0, 2, Q("59.6 mm")),
    Sketcher.Constraint("DistanceY", -1, 1, 4, 2, Q("32.1 mm")),
])
pocket1 = doc.addObject("PartDesign::Pocket", "Pocket")
body.addObject(pocket1)
pocket1.Profile = sketch3
pocket1.Length = 3

# Sketch on XY plane
sketch4 = doc.addObject("Sketcher::SketchObject", "Sketch003")
body.addObject(sketch4)
sketch4.AttachmentSupport = (doc.XY_Plane, [""])
sketch4.MapMode = "FlatFace"
sketch4.AttachmentOffset = App.Placement(Vector(0, 0, 3), App.Rotation())
sketch4.addGeometry([
    Part.LineSegment(Vector(290, 18, 0), Vector(279.8, 18, 0)),  # 0
    Part.LineSegment(Vector(279.8, 18, 0), Vector(279.8, 14.8, 0)),  # 1
    Part.LineSegment(Vector(279.8, 14.8, 0), Vector(290, 14.8, 0)),  # 2
    Part.LineSegment(Vector(290, 14.8, 0), Vector(290, 18, 0)),  # 3
    Part.LineSegment(Vector(7.2, 11.2, 0), Vector(4, 11.2, 0)),  # 4
    Part.LineSegment(Vector(4, 11.2, 0), Vector(4, -4, 0)),  # 5
    Part.LineSegment(Vector(4, -4, 0), Vector(7.2, -4, 0)),  # 6
    Part.LineSegment(Vector(7.2, -4, 0), Vector(7.2, 11.2, 0)),  # 7
    Part.LineSegment(Vector(285.6, 10.1, 0), Vector(282.4, 10.1, 0)),  # 8
    Part.LineSegment(Vector(282.4, 10.1, 0), Vector(282.4, -0.1, 0)),  # 9
    Part.LineSegment(Vector(282.4, -0.1, 0), Vector(285.6, -0.1, 0)),  # 10
    Part.LineSegment(Vector(285.6, -0.1, 0), Vector(285.6, 10.1, 0)),  # 11
    Part.LineSegment(Vector(277.6, 10.1, 0), Vector(274.4, 10.1, 0)),  # 12
    Part.LineSegment(Vector(274.4, 10.1, 0), Vector(274.4, -0.1, 0)),  # 13
    Part.LineSegment(Vector(274.4, -0.1, 0), Vector(277.6, -0.1, 0)),  # 14
    Part.LineSegment(Vector(277.6, -0.1, 0), Vector(277.6, 10.1, 0)),  # 15
    Part.LineSegment(Vector(282.4, -2.45, 0), Vector(97.6, -2.45, 0)),  # 16
    Part.LineSegment(Vector(97.6, -2.45, 0), Vector(97.6, -5.55, 0)),  # 17
    Part.LineSegment(Vector(97.6, -5.55, 0), Vector(282.4, -5.55, 0)),  # 18
    Part.LineSegment(Vector(282.4, -5.55, 0), Vector(282.4, -2.45, 0)),  # 19
    Part.LineSegment(Vector(293.6, 12.2, 0), Vector(290.4, 12.2, 0)),  # 20
    Part.LineSegment(Vector(290.4, 12.2, 0), Vector(290.4, -3, 0)),  # 21
    Part.LineSegment(Vector(290.4, -3, 0), Vector(293.6, -3, 0)),  # 22
    Part.LineSegment(Vector(293.6, -3, 0), Vector(293.6, 12.2, 0)),  # 23
], False)
sketch4.addConstraint([
    Sketcher.Constraint("Coincident", 0, 2, 1, 1),
    Sketcher.Constraint("Coincident", 1, 2, 2, 1),
    Sketcher.Constraint("Coincident", 2, 2, 3, 1),
    Sketcher.Constraint("Coincident", 3, 2, 0, 1),
    Sketcher.Constraint("Coincident", 4, 2, 5, 1),
    Sketcher.Constraint("Coincident", 5, 2, 6, 1),
    Sketcher.Constraint("Coincident", 6, 2, 7, 1),
    Sketcher.Constraint("Coincident", 7, 2, 4, 1),
    Sketcher.Constraint("Coincident", 8, 2, 9, 1),
    Sketcher.Constraint("Coincident", 9, 2, 10, 1),
    Sketcher.Constraint("Coincident", 10, 2, 11, 1),
    Sketcher.Constraint("Coincident", 11, 2, 8, 1),
    Sketcher.Constraint("Coincident", 12, 2, 13, 1),
    Sketcher.Constraint("Coincident", 13, 2, 14, 1),
    Sketcher.Constraint("Coincident", 14, 2, 15, 1),
    Sketcher.Constraint("Coincident", 15, 2, 12, 1),
    Sketcher.Constraint("Coincident", 16, 2, 17, 1),
    Sketcher.Constraint("Coincident", 17, 2, 18, 1),
    Sketcher.Constraint("Coincident", 18, 2, 19, 1),
    Sketcher.Constraint("Coincident", 19, 2, 16, 1),
    Sketcher.Constraint("Coincident", 20, 2, 21, 1),
    Sketcher.Constraint("Coincident", 21, 2, 22, 1),
    Sketcher.Constraint("Coincident", 22, 2, 23, 1),
    Sketcher.Constraint("Coincident", 23, 2, 20, 1),
    Sketcher.Constraint("Horizontal", 0),
    Sketcher.Constraint("Vertical", 1),
    Sketcher.Constraint("Horizontal", 2),
    Sketcher.Constraint("Vertical", 3),
    Sketcher.Constraint("Horizontal", 4),
    Sketcher.Constraint("Vertical", 5),
    Sketcher.Constraint("Horizontal", 6),
    Sketcher.Constraint("Vertical", 7),
    Sketcher.Constraint("Horizontal", 8),
    Sketcher.Constraint("Vertical", 9),
    Sketcher.Constraint("Horizontal", 10),
    Sketcher.Constraint("Vertical", 11),
    Sketcher.Constraint("Horizontal", 12),
    Sketcher.Constraint("Vertical", 13),
    Sketcher.Constraint("Horizontal", 14),
    Sketcher.Constraint("Vertical", 15),
    Sketcher.Constraint("Horizontal", 16),
    Sketcher.Constraint("Vertical", 17),
    Sketcher.Constraint("Horizontal", 18),
    Sketcher.Constraint("Vertical", 19),
    Sketcher.Constraint("Horizontal", 20),
    Sketcher.Constraint("Vertical", 21),
    Sketcher.Constraint("Horizontal", 22),
    Sketcher.Constraint("Vertical", 23),
    Sketcher.Constraint("Horizontal", 11, 2, 12, 2),
    Sketcher.Constraint("Horizontal", 10, 2, 13, 2),
    Sketcher.Constraint("Vertical", 9, 2, 18, 2),
    Sketcher.Constraint("Equal", 6, 8),
    Sketcher.Constraint("Equal", 10, 12),
    Sketcher.Constraint("Equal", 14, 20),
    Sketcher.Constraint("Equal", 22, 1),
    Sketcher.Constraint("Equal", 2, 9),
    Sketcher.Constraint("Equal", 7, 21),
    Sketcher.Constraint("DistanceX", 0, 2, 0, 1, Q("10.2 mm")),
    Sketcher.Constraint("DistanceX", 4, 2, 4, 1, Q("3.2 mm")),
    Sketcher.Constraint("DistanceY", 5, 2, 5, 1, Q("15.2 mm")),
    Sketcher.Constraint("DistanceY", 17, 2, 17, 1, Q("3.1 mm")),
    Sketcher.Constraint("DistanceX", -1, 1, 4, 2, Q("4 mm")),
    Sketcher.Constraint("DistanceY", 5, 2, -1, 1, Q("4 mm")),
    Sketcher.Constraint("DistanceX", 12, 2, 8, 2, Q("8 mm")),
    Sketcher.Constraint("DistanceX", 8, 2, 20, 2, Q("8 mm")),
    Sketcher.Constraint("DistanceX", 16, 2, 16, 1, Q("184.8 mm")),
    Sketcher.Constraint("DistanceY", -1, 1, 0, 2, Q("18 mm")),
    Sketcher.Constraint("DistanceX", -1, 1, 2, 2, Q("290 mm")),
    Sketcher.Constraint("DistanceY", 21, 2, -1, 1, Q("3 mm")),
    Sketcher.Constraint("DistanceX", -1, 1, 8, 2, Q("282.4 mm")),
    Sketcher.Constraint("DistanceY", -1, 1, 8, 2, Q("10.1 mm")),
    Sketcher.Constraint("DistanceY", 16, 2, -1, 1, Q("2.45 mm")),
])
pocket2 = doc.addObject("PartDesign::Pocket", "Pocket001")
body.addObject(pocket2)
pocket2.Profile = sketch4
pocket2.Length = 3

doc.recompute()
